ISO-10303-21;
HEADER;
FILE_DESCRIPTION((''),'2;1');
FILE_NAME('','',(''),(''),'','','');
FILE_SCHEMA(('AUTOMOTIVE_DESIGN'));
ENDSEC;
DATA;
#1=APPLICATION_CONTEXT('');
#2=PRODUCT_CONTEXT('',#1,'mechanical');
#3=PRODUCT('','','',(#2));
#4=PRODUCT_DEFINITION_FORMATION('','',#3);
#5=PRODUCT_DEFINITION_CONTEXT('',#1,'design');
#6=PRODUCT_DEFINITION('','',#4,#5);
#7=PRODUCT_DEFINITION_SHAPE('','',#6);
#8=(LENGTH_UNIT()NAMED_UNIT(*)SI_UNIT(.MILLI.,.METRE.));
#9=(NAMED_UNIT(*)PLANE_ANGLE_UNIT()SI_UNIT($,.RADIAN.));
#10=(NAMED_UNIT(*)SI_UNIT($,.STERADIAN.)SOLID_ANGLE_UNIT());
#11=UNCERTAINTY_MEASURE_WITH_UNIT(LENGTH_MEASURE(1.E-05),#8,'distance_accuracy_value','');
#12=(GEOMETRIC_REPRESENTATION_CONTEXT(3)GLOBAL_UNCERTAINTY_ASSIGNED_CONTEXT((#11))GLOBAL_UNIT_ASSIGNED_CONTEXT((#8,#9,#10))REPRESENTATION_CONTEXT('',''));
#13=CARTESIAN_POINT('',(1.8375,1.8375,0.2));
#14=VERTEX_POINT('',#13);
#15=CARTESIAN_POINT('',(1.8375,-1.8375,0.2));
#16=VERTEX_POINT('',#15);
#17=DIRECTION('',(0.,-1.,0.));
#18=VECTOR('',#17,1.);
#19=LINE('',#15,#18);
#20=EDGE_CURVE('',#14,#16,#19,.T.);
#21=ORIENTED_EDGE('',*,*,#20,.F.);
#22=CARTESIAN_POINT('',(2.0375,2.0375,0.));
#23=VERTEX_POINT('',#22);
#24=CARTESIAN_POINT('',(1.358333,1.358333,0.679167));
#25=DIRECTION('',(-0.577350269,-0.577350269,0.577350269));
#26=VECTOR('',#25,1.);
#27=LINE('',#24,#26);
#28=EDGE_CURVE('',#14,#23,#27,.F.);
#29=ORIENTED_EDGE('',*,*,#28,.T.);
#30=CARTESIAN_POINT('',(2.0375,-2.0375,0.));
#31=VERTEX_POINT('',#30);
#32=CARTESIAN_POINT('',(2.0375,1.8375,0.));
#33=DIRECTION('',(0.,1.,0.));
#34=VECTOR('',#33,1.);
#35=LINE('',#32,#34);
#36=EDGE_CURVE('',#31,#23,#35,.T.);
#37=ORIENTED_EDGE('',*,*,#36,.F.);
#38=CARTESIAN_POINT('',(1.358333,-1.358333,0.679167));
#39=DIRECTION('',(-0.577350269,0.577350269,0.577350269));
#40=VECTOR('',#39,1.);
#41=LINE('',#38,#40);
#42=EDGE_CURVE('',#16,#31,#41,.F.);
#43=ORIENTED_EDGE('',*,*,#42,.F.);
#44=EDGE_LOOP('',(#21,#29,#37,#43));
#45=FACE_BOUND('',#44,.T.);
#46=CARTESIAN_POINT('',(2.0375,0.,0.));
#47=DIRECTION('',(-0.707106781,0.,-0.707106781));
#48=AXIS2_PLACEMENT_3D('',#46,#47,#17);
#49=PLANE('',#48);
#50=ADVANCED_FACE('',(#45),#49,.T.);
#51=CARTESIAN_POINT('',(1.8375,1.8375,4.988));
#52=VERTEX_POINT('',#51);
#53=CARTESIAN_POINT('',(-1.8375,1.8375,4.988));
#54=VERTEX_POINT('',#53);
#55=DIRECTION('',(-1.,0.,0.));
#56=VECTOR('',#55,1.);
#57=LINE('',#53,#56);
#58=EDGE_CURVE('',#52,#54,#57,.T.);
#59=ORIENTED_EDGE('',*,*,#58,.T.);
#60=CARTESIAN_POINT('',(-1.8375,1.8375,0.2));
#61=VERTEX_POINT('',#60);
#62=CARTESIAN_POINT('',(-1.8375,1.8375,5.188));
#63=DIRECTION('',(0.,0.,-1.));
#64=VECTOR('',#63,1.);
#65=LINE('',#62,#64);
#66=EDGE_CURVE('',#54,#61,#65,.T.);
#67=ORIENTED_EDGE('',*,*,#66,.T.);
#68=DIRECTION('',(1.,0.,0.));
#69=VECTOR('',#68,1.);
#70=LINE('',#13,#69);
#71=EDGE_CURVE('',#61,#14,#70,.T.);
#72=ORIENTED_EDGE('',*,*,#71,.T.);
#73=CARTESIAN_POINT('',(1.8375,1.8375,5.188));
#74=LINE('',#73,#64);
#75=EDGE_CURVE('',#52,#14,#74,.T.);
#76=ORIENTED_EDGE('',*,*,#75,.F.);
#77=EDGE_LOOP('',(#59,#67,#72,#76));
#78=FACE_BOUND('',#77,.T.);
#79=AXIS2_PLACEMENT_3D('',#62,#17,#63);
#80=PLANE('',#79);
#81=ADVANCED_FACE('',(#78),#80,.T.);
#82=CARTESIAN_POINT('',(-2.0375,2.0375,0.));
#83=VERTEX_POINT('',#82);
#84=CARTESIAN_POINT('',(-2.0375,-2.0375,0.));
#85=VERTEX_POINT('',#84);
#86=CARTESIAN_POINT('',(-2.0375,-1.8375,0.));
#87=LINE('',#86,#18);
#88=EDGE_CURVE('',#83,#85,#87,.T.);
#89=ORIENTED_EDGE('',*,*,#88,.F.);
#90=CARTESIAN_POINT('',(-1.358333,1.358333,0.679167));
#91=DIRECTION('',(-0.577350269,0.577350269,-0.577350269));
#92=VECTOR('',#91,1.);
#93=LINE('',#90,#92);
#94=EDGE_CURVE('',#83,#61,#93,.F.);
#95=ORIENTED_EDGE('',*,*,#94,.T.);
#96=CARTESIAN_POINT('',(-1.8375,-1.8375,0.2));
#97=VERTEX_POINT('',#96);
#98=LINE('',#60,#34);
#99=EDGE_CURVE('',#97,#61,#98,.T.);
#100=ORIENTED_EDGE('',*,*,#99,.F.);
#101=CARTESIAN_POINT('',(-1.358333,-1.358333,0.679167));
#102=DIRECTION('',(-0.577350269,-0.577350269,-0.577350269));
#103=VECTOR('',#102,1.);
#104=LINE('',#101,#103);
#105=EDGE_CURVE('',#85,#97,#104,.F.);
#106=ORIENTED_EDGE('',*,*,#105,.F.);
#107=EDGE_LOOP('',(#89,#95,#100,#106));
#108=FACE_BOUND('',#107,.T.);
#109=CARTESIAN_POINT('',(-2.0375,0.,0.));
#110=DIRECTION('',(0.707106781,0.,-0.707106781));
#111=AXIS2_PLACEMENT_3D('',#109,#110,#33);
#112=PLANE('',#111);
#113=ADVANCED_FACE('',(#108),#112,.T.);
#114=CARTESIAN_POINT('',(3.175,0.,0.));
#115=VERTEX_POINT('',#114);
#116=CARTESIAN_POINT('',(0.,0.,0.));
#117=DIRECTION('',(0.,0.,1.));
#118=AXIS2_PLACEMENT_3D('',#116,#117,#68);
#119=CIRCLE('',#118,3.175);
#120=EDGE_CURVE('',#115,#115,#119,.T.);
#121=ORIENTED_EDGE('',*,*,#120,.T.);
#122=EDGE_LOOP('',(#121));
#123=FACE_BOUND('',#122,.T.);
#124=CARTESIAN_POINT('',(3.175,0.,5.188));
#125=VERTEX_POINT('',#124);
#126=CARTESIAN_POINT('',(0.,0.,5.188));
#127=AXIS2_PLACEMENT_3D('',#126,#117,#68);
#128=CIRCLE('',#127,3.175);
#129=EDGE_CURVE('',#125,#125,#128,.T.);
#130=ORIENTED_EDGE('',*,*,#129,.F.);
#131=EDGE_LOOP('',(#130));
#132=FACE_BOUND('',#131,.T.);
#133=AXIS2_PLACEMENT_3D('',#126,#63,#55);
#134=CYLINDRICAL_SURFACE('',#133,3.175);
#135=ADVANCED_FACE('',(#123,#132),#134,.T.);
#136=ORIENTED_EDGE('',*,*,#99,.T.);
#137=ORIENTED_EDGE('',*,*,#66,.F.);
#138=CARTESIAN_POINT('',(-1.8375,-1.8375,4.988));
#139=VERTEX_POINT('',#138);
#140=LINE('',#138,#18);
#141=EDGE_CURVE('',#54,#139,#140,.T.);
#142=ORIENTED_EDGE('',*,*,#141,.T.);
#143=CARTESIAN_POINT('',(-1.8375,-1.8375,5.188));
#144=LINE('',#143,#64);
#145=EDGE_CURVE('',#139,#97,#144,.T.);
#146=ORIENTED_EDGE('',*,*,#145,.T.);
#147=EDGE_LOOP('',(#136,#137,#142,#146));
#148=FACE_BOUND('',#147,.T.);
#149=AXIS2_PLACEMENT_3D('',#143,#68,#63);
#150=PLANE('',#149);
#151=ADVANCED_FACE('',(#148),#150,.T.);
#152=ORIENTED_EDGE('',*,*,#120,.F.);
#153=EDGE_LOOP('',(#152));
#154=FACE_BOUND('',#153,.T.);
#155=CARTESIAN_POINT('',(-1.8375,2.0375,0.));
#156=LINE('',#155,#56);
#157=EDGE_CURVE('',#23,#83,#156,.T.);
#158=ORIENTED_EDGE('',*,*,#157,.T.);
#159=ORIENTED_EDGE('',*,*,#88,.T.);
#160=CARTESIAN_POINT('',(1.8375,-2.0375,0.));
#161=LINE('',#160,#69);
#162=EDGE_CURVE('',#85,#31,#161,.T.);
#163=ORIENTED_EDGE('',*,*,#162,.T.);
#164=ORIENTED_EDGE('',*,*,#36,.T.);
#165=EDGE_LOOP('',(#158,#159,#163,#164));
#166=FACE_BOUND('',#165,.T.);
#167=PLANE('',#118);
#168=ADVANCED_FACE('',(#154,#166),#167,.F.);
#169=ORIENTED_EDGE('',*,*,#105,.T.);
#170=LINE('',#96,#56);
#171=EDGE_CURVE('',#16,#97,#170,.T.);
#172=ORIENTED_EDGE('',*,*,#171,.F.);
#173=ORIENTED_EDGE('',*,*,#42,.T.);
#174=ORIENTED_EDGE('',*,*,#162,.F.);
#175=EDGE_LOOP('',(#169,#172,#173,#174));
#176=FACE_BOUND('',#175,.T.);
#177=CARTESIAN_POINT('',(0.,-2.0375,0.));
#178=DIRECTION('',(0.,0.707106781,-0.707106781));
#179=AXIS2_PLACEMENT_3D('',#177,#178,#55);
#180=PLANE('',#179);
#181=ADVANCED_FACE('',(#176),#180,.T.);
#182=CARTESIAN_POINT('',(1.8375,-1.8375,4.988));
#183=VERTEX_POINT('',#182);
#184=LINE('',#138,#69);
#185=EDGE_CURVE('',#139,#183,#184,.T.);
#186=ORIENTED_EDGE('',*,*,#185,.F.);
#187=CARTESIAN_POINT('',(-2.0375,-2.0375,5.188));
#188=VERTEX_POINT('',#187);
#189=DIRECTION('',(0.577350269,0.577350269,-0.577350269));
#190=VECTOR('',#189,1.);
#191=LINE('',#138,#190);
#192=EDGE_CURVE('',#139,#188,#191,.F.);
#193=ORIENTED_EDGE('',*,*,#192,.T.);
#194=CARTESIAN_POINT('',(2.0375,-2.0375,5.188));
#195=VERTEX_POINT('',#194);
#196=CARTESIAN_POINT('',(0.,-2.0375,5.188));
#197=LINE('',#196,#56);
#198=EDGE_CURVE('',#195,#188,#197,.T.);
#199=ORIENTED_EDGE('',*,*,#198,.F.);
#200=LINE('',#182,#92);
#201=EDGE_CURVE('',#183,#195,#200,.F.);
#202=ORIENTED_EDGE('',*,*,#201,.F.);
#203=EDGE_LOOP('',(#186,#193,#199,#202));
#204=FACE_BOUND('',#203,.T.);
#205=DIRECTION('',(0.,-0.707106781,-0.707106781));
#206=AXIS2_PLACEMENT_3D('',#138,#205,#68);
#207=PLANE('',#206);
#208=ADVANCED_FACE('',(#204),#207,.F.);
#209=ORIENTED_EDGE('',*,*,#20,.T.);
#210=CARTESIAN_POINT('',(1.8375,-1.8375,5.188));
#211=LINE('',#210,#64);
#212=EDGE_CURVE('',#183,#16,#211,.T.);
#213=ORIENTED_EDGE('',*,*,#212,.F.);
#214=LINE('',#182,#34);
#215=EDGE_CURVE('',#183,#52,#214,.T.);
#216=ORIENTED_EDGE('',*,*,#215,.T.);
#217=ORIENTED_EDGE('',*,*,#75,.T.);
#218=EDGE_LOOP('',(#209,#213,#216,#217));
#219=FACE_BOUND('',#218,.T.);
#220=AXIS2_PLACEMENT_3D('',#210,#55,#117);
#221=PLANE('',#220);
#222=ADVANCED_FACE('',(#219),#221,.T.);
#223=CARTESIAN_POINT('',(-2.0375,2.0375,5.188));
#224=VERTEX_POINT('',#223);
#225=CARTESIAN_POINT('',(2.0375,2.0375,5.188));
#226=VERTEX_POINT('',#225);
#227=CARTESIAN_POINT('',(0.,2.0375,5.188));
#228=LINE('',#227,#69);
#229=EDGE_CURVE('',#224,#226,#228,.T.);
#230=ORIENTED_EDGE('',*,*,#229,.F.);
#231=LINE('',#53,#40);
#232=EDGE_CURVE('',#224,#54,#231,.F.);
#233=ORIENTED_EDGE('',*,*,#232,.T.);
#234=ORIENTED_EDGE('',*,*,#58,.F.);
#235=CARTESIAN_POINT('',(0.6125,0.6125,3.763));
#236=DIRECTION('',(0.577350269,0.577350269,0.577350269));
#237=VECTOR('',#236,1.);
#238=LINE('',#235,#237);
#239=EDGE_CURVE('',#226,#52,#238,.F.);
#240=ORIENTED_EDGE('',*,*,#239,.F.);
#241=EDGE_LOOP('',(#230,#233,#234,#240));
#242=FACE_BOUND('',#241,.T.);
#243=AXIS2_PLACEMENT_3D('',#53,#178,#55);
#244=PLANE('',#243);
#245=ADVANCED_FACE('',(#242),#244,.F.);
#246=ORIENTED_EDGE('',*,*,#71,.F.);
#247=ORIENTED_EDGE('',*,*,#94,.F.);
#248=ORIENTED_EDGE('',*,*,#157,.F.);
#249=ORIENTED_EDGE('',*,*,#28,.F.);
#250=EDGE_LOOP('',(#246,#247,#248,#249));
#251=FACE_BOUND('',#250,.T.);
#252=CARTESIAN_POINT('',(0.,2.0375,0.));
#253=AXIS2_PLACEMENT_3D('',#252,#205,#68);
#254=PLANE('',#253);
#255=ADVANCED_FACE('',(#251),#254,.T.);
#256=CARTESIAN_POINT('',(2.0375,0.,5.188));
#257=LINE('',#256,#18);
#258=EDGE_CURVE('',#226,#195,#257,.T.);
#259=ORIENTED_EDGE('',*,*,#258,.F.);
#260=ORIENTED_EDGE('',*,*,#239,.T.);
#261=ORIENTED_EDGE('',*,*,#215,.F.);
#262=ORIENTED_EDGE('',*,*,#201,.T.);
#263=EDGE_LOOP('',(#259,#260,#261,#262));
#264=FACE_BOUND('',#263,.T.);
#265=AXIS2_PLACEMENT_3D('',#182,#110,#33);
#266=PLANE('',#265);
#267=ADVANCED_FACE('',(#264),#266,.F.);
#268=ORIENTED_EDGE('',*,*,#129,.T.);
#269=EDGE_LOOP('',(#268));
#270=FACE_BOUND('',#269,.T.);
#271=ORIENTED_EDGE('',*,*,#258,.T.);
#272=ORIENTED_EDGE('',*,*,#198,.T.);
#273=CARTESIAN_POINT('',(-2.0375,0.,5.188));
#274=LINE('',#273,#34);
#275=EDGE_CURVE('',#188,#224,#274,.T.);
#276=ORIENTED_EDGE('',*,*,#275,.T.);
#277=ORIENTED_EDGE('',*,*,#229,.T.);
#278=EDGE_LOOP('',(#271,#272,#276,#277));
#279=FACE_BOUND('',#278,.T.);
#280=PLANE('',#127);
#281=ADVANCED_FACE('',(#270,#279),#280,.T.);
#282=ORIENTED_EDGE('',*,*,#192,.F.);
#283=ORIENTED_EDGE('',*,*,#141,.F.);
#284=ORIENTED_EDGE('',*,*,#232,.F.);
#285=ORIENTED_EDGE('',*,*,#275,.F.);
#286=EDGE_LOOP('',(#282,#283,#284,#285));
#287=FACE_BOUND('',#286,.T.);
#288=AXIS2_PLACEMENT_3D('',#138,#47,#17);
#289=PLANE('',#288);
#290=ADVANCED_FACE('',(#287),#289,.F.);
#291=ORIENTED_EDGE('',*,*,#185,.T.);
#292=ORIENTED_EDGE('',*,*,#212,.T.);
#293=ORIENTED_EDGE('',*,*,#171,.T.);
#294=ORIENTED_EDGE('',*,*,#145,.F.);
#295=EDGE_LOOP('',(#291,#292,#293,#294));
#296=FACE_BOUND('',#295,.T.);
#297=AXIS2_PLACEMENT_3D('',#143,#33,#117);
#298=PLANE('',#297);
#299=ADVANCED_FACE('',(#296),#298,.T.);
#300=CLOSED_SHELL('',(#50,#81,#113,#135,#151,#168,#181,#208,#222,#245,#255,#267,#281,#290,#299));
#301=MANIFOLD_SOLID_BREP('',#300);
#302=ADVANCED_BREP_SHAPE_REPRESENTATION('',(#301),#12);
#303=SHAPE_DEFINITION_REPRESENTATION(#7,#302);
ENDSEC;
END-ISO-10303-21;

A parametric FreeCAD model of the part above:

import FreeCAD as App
import Part
import Sketcher
from FreeCAD import Vector


def edges_at(feature, points):
    """Names of the edges that pass closest to the given points."""
    edges = feature.Shape.Edges
    near = lambda p: min(range(len(edges)), key=lambda i: edges[i].distToShape(Part.Vertex(*p))[0])
    return sorted({f"Edge{near(p) + 1}" for p in points})

doc = App.newDocument("Part")
params = doc.addObject("Spreadsheet::Sheet", "Params")
for row, (alias, value) in enumerate([
    ("sketch1_diameter", "6.35 mm"),
    ("pad1_length", "5.188 mm"),
    ("chamfer_size", "0.2 mm"),
], start=1):
    params.set(f"A{row}", alias)
    params.set(f"B{row}", "=" + value)
    params.setAlias(f"B{row}", alias)

body = doc.addObject("PartDesign::Body", "Body")

# Sketch on XY plane
sketch1 = body.newObject("Sketcher::SketchObject", "Sketch")
sketch1.AttachmentSupport = (doc.getObject("XY_Plane"), [""])
sketch1.MapMode = "FlatFace"
sketch1.addGeometry([
    Part.Circle(Vector(0, 0, 0), Vector(0, 0, 1), 3.2),  # 0
    Part.LineSegment(Vector(1.8, -1.8, 0), Vector(-1.8, -1.8, 0)),  # 1
    Part.LineSegment(Vector(-1.8, -1.8, 0), Vector(-1.8, 1.8, 0)),  # 2
    Part.LineSegment(Vector(-1.8, 1.8, 0), Vector(1.8, 1.8, 0)),  # 3
    Part.LineSegment(Vector(1.8, 1.8, 0), Vector(1.8, -1.8, 0)),  # 4
], False)
sketch1.addConstraint([
    Sketcher.Constraint("Coincident", 1, 2, 2, 1),
    Sketcher.Constraint("Coincident", 2, 2, 3, 1),
    Sketcher.Constraint("Coincident", 3, 2, 4, 1),
    Sketcher.Constraint("Coincident", 4, 2, 1, 1),
    Sketcher.Constraint("Horizontal", 1),
    Sketcher.Constraint("Vertical", 2),
    Sketcher.Constraint("Horizontal", 3),
    Sketcher.Constraint("Vertical", 4),
    Sketcher.Constraint("Coincident", 0, 3, -1, 1),
    Sketcher.Constraint("Symmetric", 1, 2, 3, 2, -1, 1),
    Sketcher.Constraint("Equal", 3, 2),
    Sketcher.Constraint("Diameter", 0, 6.35),
    Sketcher.Constraint("DistanceX", 1, 2, 1, 1, 3.675),
])
sketch1.setExpression("Constraints[11]", "Params.sketch1_diameter")
pad1 = body.newObject("PartDesign::Pad", "Pad")
pad1.Profile = sketch1
pad1.setExpression("Length", "Params.pad1_length")
doc.recompute()

chamfer = body.newObject("PartDesign::Chamfer", "Chamfer")
chamfer.Base = (pad1, edges_at(pad1, [
    (0, -1.837, 5.188),
    (1.837, 0, 0),
    (0, 1.837, 0),
    (-1.837, 0, 0),
    (0, -1.837, 0),
    (1.837, 0, 5.188),
    (0, 1.837, 5.188),
    (-1.837, 0, 5.188),
]))
chamfer.setExpression("Size", "Params.chamfer_size")

doc.recompute()
